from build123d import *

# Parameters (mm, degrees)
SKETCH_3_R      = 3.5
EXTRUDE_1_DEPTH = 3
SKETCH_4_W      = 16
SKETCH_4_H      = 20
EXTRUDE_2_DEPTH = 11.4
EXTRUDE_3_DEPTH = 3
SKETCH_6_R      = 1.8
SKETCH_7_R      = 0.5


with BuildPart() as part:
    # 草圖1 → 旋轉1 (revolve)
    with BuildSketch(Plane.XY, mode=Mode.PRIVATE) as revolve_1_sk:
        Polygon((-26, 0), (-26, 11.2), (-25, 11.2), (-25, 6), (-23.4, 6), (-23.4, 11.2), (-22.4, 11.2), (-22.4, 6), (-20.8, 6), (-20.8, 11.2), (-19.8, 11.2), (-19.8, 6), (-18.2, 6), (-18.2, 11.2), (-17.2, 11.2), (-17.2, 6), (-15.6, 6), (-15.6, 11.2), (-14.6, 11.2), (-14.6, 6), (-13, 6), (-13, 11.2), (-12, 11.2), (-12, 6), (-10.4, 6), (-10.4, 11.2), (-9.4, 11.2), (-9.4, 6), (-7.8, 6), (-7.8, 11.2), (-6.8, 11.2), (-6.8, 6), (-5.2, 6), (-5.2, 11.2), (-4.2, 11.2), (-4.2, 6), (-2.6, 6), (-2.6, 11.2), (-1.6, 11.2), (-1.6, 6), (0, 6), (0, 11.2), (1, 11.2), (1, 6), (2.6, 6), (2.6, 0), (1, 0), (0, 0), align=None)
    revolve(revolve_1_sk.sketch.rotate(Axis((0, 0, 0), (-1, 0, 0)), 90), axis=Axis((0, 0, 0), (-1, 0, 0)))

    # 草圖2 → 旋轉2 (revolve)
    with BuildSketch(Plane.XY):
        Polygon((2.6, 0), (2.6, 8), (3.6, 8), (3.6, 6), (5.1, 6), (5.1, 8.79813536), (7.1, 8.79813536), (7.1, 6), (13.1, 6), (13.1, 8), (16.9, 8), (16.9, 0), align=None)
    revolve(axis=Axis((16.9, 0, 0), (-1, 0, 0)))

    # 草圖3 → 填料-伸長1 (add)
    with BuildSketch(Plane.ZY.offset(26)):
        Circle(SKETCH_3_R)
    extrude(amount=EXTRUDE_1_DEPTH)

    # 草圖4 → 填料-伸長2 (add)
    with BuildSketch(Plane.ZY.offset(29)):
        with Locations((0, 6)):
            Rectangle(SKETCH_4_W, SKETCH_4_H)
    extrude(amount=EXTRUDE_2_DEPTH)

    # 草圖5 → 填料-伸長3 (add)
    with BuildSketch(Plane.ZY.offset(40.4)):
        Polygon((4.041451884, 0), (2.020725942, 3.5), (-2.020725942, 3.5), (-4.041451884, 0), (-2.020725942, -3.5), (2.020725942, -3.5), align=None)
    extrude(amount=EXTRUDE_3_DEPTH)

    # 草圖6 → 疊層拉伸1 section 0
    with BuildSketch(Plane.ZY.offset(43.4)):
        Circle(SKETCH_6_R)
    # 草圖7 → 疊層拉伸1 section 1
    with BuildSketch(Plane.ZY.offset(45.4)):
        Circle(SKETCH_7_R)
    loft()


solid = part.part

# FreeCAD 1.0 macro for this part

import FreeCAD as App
import Part
import Sketcher
Q = App.Units.Quantity

doc = App.newDocument("Part")
body = doc.addObject("PartDesign::Body", "Body")

sketch1 = body.newObject("Sketcher::SketchObject", "Sketch")
sketch1.AttachmentSupport = (doc.getObject("XY_Plane"), [""])
sketch1.MapMode = "FlatFace"
sketch1.addGeometry([
    Part.LineSegment(App.Vector(-26, 11.2, 0), App.Vector(-26, 0, 0)),
    Part.LineSegment(App.Vector(-26, 0, 0), App.Vector(2.6, 0, 0)),
    Part.LineSegment(App.Vector(2.6, 0, 0), App.Vector(2.6, 6, 0)),
    Part.LineSegment(App.Vector(2.6, 6, 0), App.Vector(1, 6, 0)),
    Part.LineSegment(App.Vector(1, 6, 0), App.Vector(1, 11.2, 0)),
    Part.LineSegment(App.Vector(1, 11.2, 0), App.Vector(0, 11.2, 0)),
    Part.LineSegment(App.Vector(0, 11.2, 0), App.Vector(0, 6, 0)),
    Part.LineSegment(App.Vector(0, 6, 0), App.Vector(-1.6, 6, 0)),
    Part.LineSegment(App.Vector(-1.6, 6, 0), App.Vector(-1.6, 11.2, 0)),
    Part.LineSegment(App.Vector(-1.6, 11.2, 0), App.Vector(-2.6, 11.2, 0)),
    Part.LineSegment(App.Vector(-2.6, 11.2, 0), App.Vector(-2.6, 6, 0)),
    Part.LineSegment(App.Vector(-2.6, 6, 0), App.Vector(-4.2, 6, 0)),
    Part.LineSegment(App.Vector(-4.2, 6, 0), App.Vector(-4.2, 11.2, 0)),
    Part.LineSegment(App.Vector(-4.2, 11.2, 0), App.Vector(-5.2, 11.2, 0)),
    Part.LineSegment(App.Vector(-5.2, 11.2, 0), App.Vector(-5.2, 6, 0)),
    Part.LineSegment(App.Vector(-5.2, 6, 0), App.Vector(-6.8, 6, 0)),
    Part.LineSegment(App.Vector(-6.8, 6, 0), App.Vector(-6.8, 11.2, 0)),
    Part.LineSegment(App.Vector(-6.8, 11.2, 0), App.Vector(-7.8, 11.2, 0)),
    Part.LineSegment(App.Vector(-7.8, 11.2, 0), App.Vector(-7.8, 6, 0)),
    Part.LineSegment(App.Vector(-7.8, 6, 0), App.Vector(-9.4, 6, 0)),
    Part.LineSegment(App.Vector(-9.4, 6, 0), App.Vector(-9.4, 11.2, 0)),
    Part.LineSegment(App.Vector(-9.4, 11.2, 0), App.Vector(-10.4, 11.2, 0)),
    Part.LineSegment(App.Vector(-10.4, 11.2, 0), App.Vector(-10.4, 6, 0)),
    Part.LineSegment(App.Vector(-10.4, 6, 0), App.Vector(-12, 6, 0)),
    Part.LineSegment(App.Vector(-12, 6, 0), App.Vector(-12, 11.2, 0)),
    Part.LineSegment(App.Vector(-12, 11.2, 0), App.Vector(-13, 11.2, 0)),
    Part.LineSegment(App.Vector(-13, 11.2, 0), App.Vector(-13, 6, 0)),
    Part.LineSegment(App.Vector(-13, 6, 0), App.Vector(-14.6, 6, 0)),
    Part.LineSegment(App.Vector(-14.6, 6, 0), App.Vector(-14.6, 11.2, 0)),
    Part.LineSegment(App.Vector(-14.6, 11.2, 0), App.Vector(-15.6, 11.2, 0)),
    Part.LineSegment(App.Vector(-15.6, 11.2, 0), App.Vector(-15.6, 6, 0)),
    Part.LineSegment(App.Vector(-15.6, 6, 0), App.Vector(-17.2, 6, 0)),
    Part.LineSegment(App.Vector(-17.2, 6, 0), App.Vector(-17.2, 11.2, 0)),
    Part.LineSegment(App.Vector(-17.2, 11.2, 0), App.Vector(-18.2, 11.2, 0)),
    Part.LineSegment(App.Vector(-18.2, 11.2, 0), App.Vector(-18.2, 6, 0)),
    Part.LineSegment(App.Vector(-18.2, 6, 0), App.Vector(-19.8, 6, 0)),
    Part.LineSegment(App.Vector(-19.8, 6, 0), App.Vector(-19.8, 11.2, 0)),
    Part.LineSegment(App.Vector(-19.8, 11.2, 0), App.Vector(-20.8, 11.2, 0)),
    Part.LineSegment(App.Vector(-20.8, 11.2, 0), App.Vector(-20.8, 6, 0)),
    Part.LineSegment(App.Vector(-20.8, 6, 0), App.Vector(-22.4, 6, 0)),
    Part.LineSegment(App.Vector(-22.4, 6, 0), App.Vector(-22.4, 11.2, 0)),
    Part.LineSegment(App.Vector(-22.4, 11.2, 0), App.Vector(-23.4, 11.2, 0)),
    Part.LineSegment(App.Vector(-23.4, 11.2, 0), App.Vector(-23.4, 6, 0)),
    Part.LineSegment(App.Vector(-23.4, 6, 0), App.Vector(-25, 6, 0)),
    Part.LineSegment(App.Vector(-25, 6, 0), App.Vector(-25, 11.2, 0)),
    Part.LineSegment(App.Vector(-25, 11.2, 0), App.Vector(-26, 11.2, 0)),
], False)
sketch1.addConstraint([
    Sketcher.Constraint("Coincident", 0, 2, 1, 1),
    Sketcher.Constraint("Coincident", 1, 2, 2, 1),
    Sketcher.Constraint("Coincident", 2, 2, 3, 1),
    Sketcher.Constraint("Coincident", 3, 2, 4, 1),
    Sketcher.Constraint("Coincident", 4, 2, 5, 1),
    Sketcher.Constraint("Coincident", 5, 2, 6, 1),
    Sketcher.Constraint("Coincident", 6, 2, 7, 1),
    Sketcher.Constraint("Coincident", 7, 2, 8, 1),
    Sketcher.Constraint("Coincident", 8, 2, 9, 1),
    Sketcher.Constraint("Coincident", 9, 2, 10, 1),
    Sketcher.Constraint("Coincident", 10, 2, 11, 1),
    Sketcher.Constraint("Coincident", 11, 2, 12, 1),
    Sketcher.Constraint("Coincident", 12, 2, 13, 1),
    Sketcher.Constraint("Coincident", 13, 2, 14, 1),
    Sketcher.Constraint("Coincident", 14, 2, 15, 1),
    Sketcher.Constraint("Coincident", 15, 2, 16, 1),
    Sketcher.Constraint("Coincident", 16, 2, 17, 1),
    Sketcher.Constraint("Coincident", 17, 2, 18, 1),
    Sketcher.Constraint("Coincident", 18, 2, 19, 1),
    Sketcher.Constraint("Coincident", 19, 2, 20, 1),
    Sketcher.Constraint("Coincident", 20, 2, 21, 1),
    Sketcher.Constraint("Coincident", 21, 2, 22, 1),
    Sketcher.Constraint("Coincident", 22, 2, 23, 1),
    Sketcher.Constraint("Coincident", 23, 2, 24, 1),
    Sketcher.Constraint("Coincident", 24, 2, 25, 1),
    Sketcher.Constraint("Coincident", 25, 2, 26, 1),
    Sketcher.Constraint("Coincident", 26, 2, 27, 1),
    Sketcher.Constraint("Coincident", 27, 2, 28, 1),
    Sketcher.Constraint("Coincident", 28, 2, 29, 1),
    Sketcher.Constraint("Coincident", 29, 2, 30, 1),
    Sketcher.Constraint("Coincident", 30, 2, 31, 1),
    Sketcher.Constraint("Coincident", 31, 2, 32, 1),
    Sketcher.Constraint("Coincident", 32, 2, 33, 1),
    Sketcher.Constraint("Coincident", 33, 2, 34, 1),
    Sketcher.Constraint("Coincident", 34, 2, 35, 1),
    Sketcher.Constraint("Coincident", 35, 2, 36, 1),
    Sketcher.Constraint("Coincident", 36, 2, 37, 1),
    Sketcher.Constraint("Coincident", 37, 2, 38, 1),
    Sketcher.Constraint("Coincident", 38, 2, 39, 1),
    Sketcher.Constraint("Coincident", 39, 2, 40, 1),
    Sketcher.Constraint("Coincident", 40, 2, 41, 1),
    Sketcher.Constraint("Coincident", 41, 2, 42, 1),
    Sketcher.Constraint("Coincident", 42, 2, 43, 1),
    Sketcher.Constraint("Coincident", 43, 2, 44, 1),
    Sketcher.Constraint("Coincident", 44, 2, 45, 1),
    Sketcher.Constraint("Coincident", 45, 2, 0, 1),
    Sketcher.Constraint("Vertical", 0),
    Sketcher.Constraint("Horizontal", 1),
    Sketcher.Constraint("Vertical", 2),
    Sketcher.Constraint("Horizontal", 3),
    Sketcher.Constraint("Vertical", 4),
    Sketcher.Constraint("Horizontal", 5),
    Sketcher.Constraint("Vertical", 6),
    Sketcher.Constraint("Horizontal", 7),
    Sketcher.Constraint("Vertical", 8),
    Sketcher.Constraint("Horizontal", 9),
    Sketcher.Constraint("Vertical", 10),
    Sketcher.Constraint("Horizontal", 11),
    Sketcher.Constraint("Vertical", 12),
    Sketcher.Constraint("Horizontal", 13),
    Sketcher.Constraint("Vertical", 14),
    Sketcher.Constraint("Horizontal", 15),
    Sketcher.Constraint("Vertical", 16),
    Sketcher.Constraint("Horizontal", 17),
    Sketcher.Constraint("Vertical", 18),
    Sketcher.Constraint("Horizontal", 19),
    Sketcher.Constraint("Vertical", 20),
    Sketcher.Constraint("Horizontal", 21),
    Sketcher.Constraint("Vertical", 22),
    Sketcher.Constraint("Horizontal", 23),
    Sketcher.Constraint("Vertical", 24),
    Sketcher.Constraint("Horizontal", 25),
    Sketcher.Constraint("Vertical", 26),
    Sketcher.Constraint("Horizontal", 27),
    Sketcher.Constraint("Vertical", 28),
    Sketcher.Constraint("Horizontal", 29),
    Sketcher.Constraint("Vertical", 30),
    Sketcher.Constraint("Horizontal", 31),
    Sketcher.Constraint("Vertical", 32),
    Sketcher.Constraint("Horizontal", 33),
    Sketcher.Constraint("Vertical", 34),
    Sketcher.Constraint("Horizontal", 35),
    Sketcher.Constraint("Vertical", 36),
    Sketcher.Constraint("Horizontal", 37),
    Sketcher.Constraint("Vertical", 38),
    Sketcher.Constraint("Horizontal", 39),
    Sketcher.Constraint("Vertical", 40),
    Sketcher.Constraint("Horizontal", 41),
    Sketcher.Constraint("Vertical", 42),
    Sketcher.Constraint("Horizontal", 43),
    Sketcher.Constraint("Vertical", 44),
    Sketcher.Constraint("Horizontal", 45),
    Sketcher.Constraint("Symmetric", 2, 2, 10, 2, -2),
    Sketcher.Constraint("PointOnObject", 0, 2, -1),
    Sketcher.Constraint("PointOnObject", 5, 2, -2),
    Sketcher.Constraint("Horizontal", 3, 2, 6, 2),
    Sketcher.Constraint("Horizontal", 5, 2, 8, 2),
    Sketcher.Constraint("Horizontal", 9, 2, 12, 2),
    Sketcher.Constraint("Horizontal", 11, 2, 14, 2),
    Sketcher.Constraint("Horizontal", 13, 2, 16, 2),
    Sketcher.Constraint("Horizontal", 15, 2, 18, 2),
    Sketcher.Constraint("Horizontal", 17, 2, 20, 2),
    Sketcher.Constraint("Horizontal", 19, 2, 22, 2),
    Sketcher.Constraint("Horizontal", 21, 2, 24, 2),
    Sketcher.Constraint("Horizontal", 23, 2, 26, 2),
    Sketcher.Constraint("Horizontal", 25, 2, 28, 2),
    Sketcher.Constraint("Horizontal", 27, 2, 30, 2),
    Sketcher.Constraint("Horizontal", 29, 2, 32, 2),
    Sketcher.Constraint("Horizontal", 31, 2, 34, 2),
    Sketcher.Constraint("Horizontal", 33, 2, 36, 2),
    Sketcher.Constraint("Horizontal", 35, 2, 38, 2),
    Sketcher.Constraint("Horizontal", 37, 2, 40, 2),
    Sketcher.Constraint("Horizontal", 39, 2, 42, 2),
    Sketcher.Constraint("Horizontal", 41, 2, 44, 2),
    Sketcher.Constraint("Equal", 3, 7),
    Sketcher.Constraint("Equal", 7, 11),
    Sketcher.Constraint("Equal", 9, 13),
    Sketcher.Constraint("Equal", 11, 15),
    Sketcher.Constraint("Equal", 13, 17),
    Sketcher.Constraint("Equal", 15, 19),
    Sketcher.Constraint("Equal", 17, 21),
    Sketcher.Constraint("Equal", 19, 23),
    Sketcher.Constraint("Equal", 21, 25),
    Sketcher.Constraint("Equal", 23, 27),
    Sketcher.Constraint("Equal", 25, 29),
    Sketcher.Constraint("Equal", 27, 31),
    Sketcher.Constraint("Equal", 29, 33),
    Sketcher.Constraint("Equal", 31, 35),
    Sketcher.Constraint("Equal", 33, 37),
    Sketcher.Constraint("Equal", 35, 39),
    Sketcher.Constraint("Equal", 37, 41),
    Sketcher.Constraint("Equal", 39, 43),
    Sketcher.Constraint("Equal", 41, 45),
    Sketcher.Constraint("DistanceX", 5, 2, 5, 1, Q("1 mm")),
    Sketcher.Constraint("DistanceY", 2, 1, 2, 2, Q("6 mm")),
    Sketcher.Constraint("DistanceX", 1, 1, 1, 2, Q("28.6 mm")),
    Sketcher.Constraint("DistanceY", 0, 2, 0, 1, Q("11.2 mm")),
])
revolution = body.newObject("PartDesign::Revolution", "Revolution")
revolution.Profile = sketch1
revolution.ReferenceAxis = (sketch1, ["H_Axis"])
revolution.Angle = 360

sketch2 = body.newObject("Sketcher::SketchObject", "Sketch001")
sketch2.AttachmentSupport = (doc.getObject("XY_Plane"), [""])
sketch2.MapMode = "FlatFace"
sketch2.addGeometry([
    Part.LineSegment(App.Vector(2.6, 8, 0), App.Vector(2.6, 0, 0)),
    Part.LineSegment(App.Vector(2.6, 0, 0), App.Vector(16.9, 0, 0)),
    Part.LineSegment(App.Vector(16.9, 0, 0), App.Vector(16.9, 8, 0)),
    Part.LineSegment(App.Vector(16.9, 8, 0), App.Vector(13.1, 8, 0)),
    Part.LineSegment(App.Vector(13.1, 8, 0), App.Vector(13.1, 6, 0)),
    Part.LineSegment(App.Vector(13.1, 6, 0), App.Vector(7.1, 6, 0)),
    Part.LineSegment(App.Vector(7.1, 6, 0), App.Vector(7.1, 8.798135, 0)),
    Part.LineSegment(App.Vector(7.1, 8.798135, 0), App.Vector(5.1, 8.798135, 0)),
    Part.LineSegment(App.Vector(5.1, 8.798135, 0), App.Vector(5.1, 6, 0)),
    Part.LineSegment(App.Vector(5.1, 6, 0), App.Vector(3.6, 6, 0)),
    Part.LineSegment(App.Vector(3.6, 6, 0), App.Vector(3.6, 8, 0)),
    Part.LineSegment(App.Vector(3.6, 8, 0), App.Vector(2.6, 8, 0)),
], False)
sketch2.addConstraint([
    Sketcher.Constraint("Coincident", 0, 2, 1, 1),
    Sketcher.Constraint("Coincident", 1, 2, 2, 1),
    Sketcher.Constraint("Coincident", 2, 2, 3, 1),
    Sketcher.Constraint("Coincident", 3, 2, 4, 1),
    Sketcher.Constraint("Coincident", 4, 2, 5, 1),
    Sketcher.Constraint("Coincident", 5, 2, 6, 1),
    Sketcher.Constraint("Coincident", 6, 2, 7, 1),
    Sketcher.Constraint("Coincident", 7, 2, 8, 1),
    Sketcher.Constraint("Coincident", 8, 2, 9, 1),
    Sketcher.Constraint("Coincident", 9, 2, 10, 1),
    Sketcher.Constraint("Coincident", 10, 2, 11, 1),
    Sketcher.Constraint("Coincident", 11, 2, 0, 1),
    Sketcher.Constraint("Vertical", 0),
    Sketcher.Constraint("Horizontal", 1),
    Sketcher.Constraint("Vertical", 2),
    Sketcher.Constraint("Horizontal", 3),
    Sketcher.Constraint("Vertical", 4),
    Sketcher.Constraint("Horizontal", 5),
    Sketcher.Constraint("Vertical", 6),
    Sketcher.Constraint("Horizontal", 7),
    Sketcher.Constraint("Vertical", 8),
    Sketcher.Constraint("Horizontal", 9),
    Sketcher.Constraint("Vertical", 10),
    Sketcher.Constraint("Horizontal", 11),
    Sketcher.Constraint("PointOnObject", 0, 2, -1),
    Sketcher.Constraint("Horizontal", 5, 2, 8, 2),
    Sketcher.Constraint("Horizontal", 3, 2, 10, 2),
    Sketcher.Constraint("Equal", 7, 4),
    Sketcher.Constraint("DistanceX", 5, 2, 5, 1, Q("6 mm")),
    Sketcher.Constraint("DistanceX", 7, 2, 7, 1, Q("2 mm")),
    Sketcher.Constraint("DistanceX", 11, 2, 11, 1, Q("1 mm")),
    Sketcher.Constraint("DistanceY", 0, 2, 0, 1, Q("8 mm")),
    Sketcher.Constraint("DistanceX", 1, 1, 1, 2, Q("14.3 mm")),
    Sketcher.Constraint("DistanceX", 3, 2, 3, 1, Q("3.8 mm")),
    Sketcher.Constraint("DistanceX", -1, 1, 0, 2, Q("2.6 mm")),
    Sketcher.Constraint("DistanceY", 6, 1, 6, 2, Q("2.798135 mm")),
])
revolution2 = body.newObject("PartDesign::Revolution", "Revolution001")
revolution2.Profile = sketch2
revolution2.ReferenceAxis = (sketch2, ["H_Axis"])
revolution2.Angle = 360

sketch3 = body.newObject("Sketcher::SketchObject", "Sketch002")
sketch3.AttachmentSupport = (doc.getObject("YZ_Plane"), [""])
sketch3.MapMode = "FlatFace"
sketch3.AttachmentOffset = App.Placement(App.Vector(0, 0, -26), App.Rotation())
sketch3.addGeometry(Part.Circle(App.Vector(0, 0, 0), App.Vector(0, 0, 1), 3.5), False)
sketch3.addConstraint([
    Sketcher.Constraint("Coincident", 0, 3, -1, 1),
    Sketcher.Constraint("Diameter", 0, Q("7 mm")),
])
pad1 = body.newObject("PartDesign::Pad", "Pad")
pad1.Profile = sketch3
pad1.Length = 3
pad1.Reversed = True

sketch4 = body.newObject("Sketcher::SketchObject", "Sketch003")
sketch4.AttachmentSupport = (doc.getObject("YZ_Plane"), [""])
sketch4.MapMode = "FlatFace"
sketch4.AttachmentOffset = App.Placement(App.Vector(0, 0, -29), App.Rotation())
sketch4.addGeometry([
    Part.LineSegment(App.Vector(16, -8, 0), App.Vector(-4, -8, 0)),
    Part.LineSegment(App.Vector(-4, -8, 0), App.Vector(-4, 8, 0)),
    Part.LineSegment(App.Vector(-4, 8, 0), App.Vector(16, 8, 0)),
    Part.LineSegment(App.Vector(16, 8, 0), App.Vector(16, -8, 0)),
], False)
sketch4.addConstraint([
    Sketcher.Constraint("Coincident", 0, 2, 1, 1),
    Sketcher.Constraint("Coincident", 1, 2, 2, 1),
    Sketcher.Constraint("Coincident", 2, 2, 3, 1),
    Sketcher.Constraint("Coincident", 3, 2, 0, 1),
    Sketcher.Constraint("Horizontal", 0),
    Sketcher.Constraint("Vertical", 1),
    Sketcher.Constraint("Horizontal", 2),
    Sketcher.Constraint("Vertical", 3),
    Sketcher.Constraint("DistanceX", 0, 2, 0, 1, Q("20 mm")),
    Sketcher.Constraint("DistanceY", 1, 1, 1, 2, Q("16 mm")),
    Sketcher.Constraint("DistanceX", 0, 2, -1, 1, Q("4 mm")),
    Sketcher.Constraint("DistanceY", 0, 2, -1, 1, Q("8 mm")),
])
pad2 = body.newObject("PartDesign::Pad", "Pad001")
pad2.Profile = sketch4
pad2.Length = 11.4
pad2.Reversed = True

sketch5 = body.newObject("Sketcher::SketchObject", "Sketch004")
sketch5.AttachmentSupport = (doc.getObject("YZ_Plane"), [""])
sketch5.MapMode = "FlatFace"
sketch5.AttachmentOffset = App.Placement(App.Vector(0, 0, -40.4), App.Rotation())
sketch5.addGeometry([
    Part.LineSegment(App.Vector(0, 4.041452, 0), App.Vector(3.5, 2.020726, 0)),
    Part.LineSegment(App.Vector(3.5, 2.020726, 0), App.Vector(3.5, -2.020726, 0)),
    Part.LineSegment(App.Vector(3.5, -2.020726, 0), App.Vector(0, -4.041452, 0)),
    Part.LineSegment(App.Vector(0, -4.041452, 0), App.Vector(-3.5, -2.020726, 0)),
    Part.LineSegment(App.Vector(-3.5, -2.020726, 0), App.Vector(-3.5, 2.020726, 0)),
    Part.LineSegment(App.Vector(-3.5, 2.020726, 0), App.Vector(0, 4.041452, 0)),
], False)
sketch5.addConstraint([
    Sketcher.Constraint("Coincident", 0, 2, 1, 1),
    Sketcher.Constraint("Coincident", 1, 2, 2, 1),
    Sketcher.Constraint("Coincident", 2, 2, 3, 1),
    Sketcher.Constraint("Coincident", 3, 2, 4, 1),
    Sketcher.Constraint("Coincident", 4, 2, 5, 1),
    Sketcher.Constraint("Coincident", 5, 2, 0, 1),
    Sketcher.Constraint("Vertical", 1),
    Sketcher.Constraint("Vertical", 4),
    Sketcher.Constraint("Symmetric", 0, 2, 3, 2, -1, 1),
    Sketcher.Constraint("Symmetric", 2, 2, 5, 2, -1, 1),
    Sketcher.Constraint("PointOnObject", 2, 2, -2),
    Sketcher.Constraint("Parallel", 2, 5),
    Sketcher.Constraint("Horizontal", 1, 2, 3, 2),
    Sketcher.Constraint("Angle", 0, Q("-30 deg")),
    Sketcher.Constraint("DistanceX", 3, 2, 1, 2, Q("7 mm")),
    Sketcher.Constraint("DistanceY", 1, 2, 1, 1, Q("4.041452 mm")),
])
pad3 = body.newObject("PartDesign::Pad", "Pad002")
pad3.Profile = sketch5
pad3.Length = 3
pad3.Reversed = True

sketch6 = body.newObject("Sketcher::SketchObject", "Sketch005")
sketch6.AttachmentSupport = (doc.getObject("YZ_Plane"), [""])
sketch6.MapMode = "FlatFace"
sketch6.AttachmentOffset = App.Placement(App.Vector(0, 0, -43.4), App.Rotation())
sketch6.addGeometry(Part.Circle(App.Vector(0, 0, 0), App.Vector(0, 0, 1), 1.8), False)
sketch6.addConstraint([
    Sketcher.Constraint("Coincident", 0, 3, -1, 1),
    Sketcher.Constraint("Diameter", 0, Q("3.6 mm")),
])

sketch7 = body.newObject("Sketcher::SketchObject", "Sketch006")
sketch7.AttachmentSupport = (doc.getObject("YZ_Plane"), [""])
sketch7.MapMode = "FlatFace"
sketch7.AttachmentOffset = App.Placement(App.Vector(0, 0, -45.4), App.Rotation())
sketch7.addGeometry(Part.Circle(App.Vector(0, 0, 0), App.Vector(0, 0, 1), 0.5), False)
sketch7.addConstraint([
    Sketcher.Constraint("Coincident", 0, 3, -1, 1),
    Sketcher.Constraint("Diameter", 0, Q("1 mm")),
])

additiveloft = body.newObject("PartDesign::AdditiveLoft", "AdditiveLoft")
additiveloft.Profile = sketch6
additiveloft.Sections = [sketch7]

doc.recompute()
